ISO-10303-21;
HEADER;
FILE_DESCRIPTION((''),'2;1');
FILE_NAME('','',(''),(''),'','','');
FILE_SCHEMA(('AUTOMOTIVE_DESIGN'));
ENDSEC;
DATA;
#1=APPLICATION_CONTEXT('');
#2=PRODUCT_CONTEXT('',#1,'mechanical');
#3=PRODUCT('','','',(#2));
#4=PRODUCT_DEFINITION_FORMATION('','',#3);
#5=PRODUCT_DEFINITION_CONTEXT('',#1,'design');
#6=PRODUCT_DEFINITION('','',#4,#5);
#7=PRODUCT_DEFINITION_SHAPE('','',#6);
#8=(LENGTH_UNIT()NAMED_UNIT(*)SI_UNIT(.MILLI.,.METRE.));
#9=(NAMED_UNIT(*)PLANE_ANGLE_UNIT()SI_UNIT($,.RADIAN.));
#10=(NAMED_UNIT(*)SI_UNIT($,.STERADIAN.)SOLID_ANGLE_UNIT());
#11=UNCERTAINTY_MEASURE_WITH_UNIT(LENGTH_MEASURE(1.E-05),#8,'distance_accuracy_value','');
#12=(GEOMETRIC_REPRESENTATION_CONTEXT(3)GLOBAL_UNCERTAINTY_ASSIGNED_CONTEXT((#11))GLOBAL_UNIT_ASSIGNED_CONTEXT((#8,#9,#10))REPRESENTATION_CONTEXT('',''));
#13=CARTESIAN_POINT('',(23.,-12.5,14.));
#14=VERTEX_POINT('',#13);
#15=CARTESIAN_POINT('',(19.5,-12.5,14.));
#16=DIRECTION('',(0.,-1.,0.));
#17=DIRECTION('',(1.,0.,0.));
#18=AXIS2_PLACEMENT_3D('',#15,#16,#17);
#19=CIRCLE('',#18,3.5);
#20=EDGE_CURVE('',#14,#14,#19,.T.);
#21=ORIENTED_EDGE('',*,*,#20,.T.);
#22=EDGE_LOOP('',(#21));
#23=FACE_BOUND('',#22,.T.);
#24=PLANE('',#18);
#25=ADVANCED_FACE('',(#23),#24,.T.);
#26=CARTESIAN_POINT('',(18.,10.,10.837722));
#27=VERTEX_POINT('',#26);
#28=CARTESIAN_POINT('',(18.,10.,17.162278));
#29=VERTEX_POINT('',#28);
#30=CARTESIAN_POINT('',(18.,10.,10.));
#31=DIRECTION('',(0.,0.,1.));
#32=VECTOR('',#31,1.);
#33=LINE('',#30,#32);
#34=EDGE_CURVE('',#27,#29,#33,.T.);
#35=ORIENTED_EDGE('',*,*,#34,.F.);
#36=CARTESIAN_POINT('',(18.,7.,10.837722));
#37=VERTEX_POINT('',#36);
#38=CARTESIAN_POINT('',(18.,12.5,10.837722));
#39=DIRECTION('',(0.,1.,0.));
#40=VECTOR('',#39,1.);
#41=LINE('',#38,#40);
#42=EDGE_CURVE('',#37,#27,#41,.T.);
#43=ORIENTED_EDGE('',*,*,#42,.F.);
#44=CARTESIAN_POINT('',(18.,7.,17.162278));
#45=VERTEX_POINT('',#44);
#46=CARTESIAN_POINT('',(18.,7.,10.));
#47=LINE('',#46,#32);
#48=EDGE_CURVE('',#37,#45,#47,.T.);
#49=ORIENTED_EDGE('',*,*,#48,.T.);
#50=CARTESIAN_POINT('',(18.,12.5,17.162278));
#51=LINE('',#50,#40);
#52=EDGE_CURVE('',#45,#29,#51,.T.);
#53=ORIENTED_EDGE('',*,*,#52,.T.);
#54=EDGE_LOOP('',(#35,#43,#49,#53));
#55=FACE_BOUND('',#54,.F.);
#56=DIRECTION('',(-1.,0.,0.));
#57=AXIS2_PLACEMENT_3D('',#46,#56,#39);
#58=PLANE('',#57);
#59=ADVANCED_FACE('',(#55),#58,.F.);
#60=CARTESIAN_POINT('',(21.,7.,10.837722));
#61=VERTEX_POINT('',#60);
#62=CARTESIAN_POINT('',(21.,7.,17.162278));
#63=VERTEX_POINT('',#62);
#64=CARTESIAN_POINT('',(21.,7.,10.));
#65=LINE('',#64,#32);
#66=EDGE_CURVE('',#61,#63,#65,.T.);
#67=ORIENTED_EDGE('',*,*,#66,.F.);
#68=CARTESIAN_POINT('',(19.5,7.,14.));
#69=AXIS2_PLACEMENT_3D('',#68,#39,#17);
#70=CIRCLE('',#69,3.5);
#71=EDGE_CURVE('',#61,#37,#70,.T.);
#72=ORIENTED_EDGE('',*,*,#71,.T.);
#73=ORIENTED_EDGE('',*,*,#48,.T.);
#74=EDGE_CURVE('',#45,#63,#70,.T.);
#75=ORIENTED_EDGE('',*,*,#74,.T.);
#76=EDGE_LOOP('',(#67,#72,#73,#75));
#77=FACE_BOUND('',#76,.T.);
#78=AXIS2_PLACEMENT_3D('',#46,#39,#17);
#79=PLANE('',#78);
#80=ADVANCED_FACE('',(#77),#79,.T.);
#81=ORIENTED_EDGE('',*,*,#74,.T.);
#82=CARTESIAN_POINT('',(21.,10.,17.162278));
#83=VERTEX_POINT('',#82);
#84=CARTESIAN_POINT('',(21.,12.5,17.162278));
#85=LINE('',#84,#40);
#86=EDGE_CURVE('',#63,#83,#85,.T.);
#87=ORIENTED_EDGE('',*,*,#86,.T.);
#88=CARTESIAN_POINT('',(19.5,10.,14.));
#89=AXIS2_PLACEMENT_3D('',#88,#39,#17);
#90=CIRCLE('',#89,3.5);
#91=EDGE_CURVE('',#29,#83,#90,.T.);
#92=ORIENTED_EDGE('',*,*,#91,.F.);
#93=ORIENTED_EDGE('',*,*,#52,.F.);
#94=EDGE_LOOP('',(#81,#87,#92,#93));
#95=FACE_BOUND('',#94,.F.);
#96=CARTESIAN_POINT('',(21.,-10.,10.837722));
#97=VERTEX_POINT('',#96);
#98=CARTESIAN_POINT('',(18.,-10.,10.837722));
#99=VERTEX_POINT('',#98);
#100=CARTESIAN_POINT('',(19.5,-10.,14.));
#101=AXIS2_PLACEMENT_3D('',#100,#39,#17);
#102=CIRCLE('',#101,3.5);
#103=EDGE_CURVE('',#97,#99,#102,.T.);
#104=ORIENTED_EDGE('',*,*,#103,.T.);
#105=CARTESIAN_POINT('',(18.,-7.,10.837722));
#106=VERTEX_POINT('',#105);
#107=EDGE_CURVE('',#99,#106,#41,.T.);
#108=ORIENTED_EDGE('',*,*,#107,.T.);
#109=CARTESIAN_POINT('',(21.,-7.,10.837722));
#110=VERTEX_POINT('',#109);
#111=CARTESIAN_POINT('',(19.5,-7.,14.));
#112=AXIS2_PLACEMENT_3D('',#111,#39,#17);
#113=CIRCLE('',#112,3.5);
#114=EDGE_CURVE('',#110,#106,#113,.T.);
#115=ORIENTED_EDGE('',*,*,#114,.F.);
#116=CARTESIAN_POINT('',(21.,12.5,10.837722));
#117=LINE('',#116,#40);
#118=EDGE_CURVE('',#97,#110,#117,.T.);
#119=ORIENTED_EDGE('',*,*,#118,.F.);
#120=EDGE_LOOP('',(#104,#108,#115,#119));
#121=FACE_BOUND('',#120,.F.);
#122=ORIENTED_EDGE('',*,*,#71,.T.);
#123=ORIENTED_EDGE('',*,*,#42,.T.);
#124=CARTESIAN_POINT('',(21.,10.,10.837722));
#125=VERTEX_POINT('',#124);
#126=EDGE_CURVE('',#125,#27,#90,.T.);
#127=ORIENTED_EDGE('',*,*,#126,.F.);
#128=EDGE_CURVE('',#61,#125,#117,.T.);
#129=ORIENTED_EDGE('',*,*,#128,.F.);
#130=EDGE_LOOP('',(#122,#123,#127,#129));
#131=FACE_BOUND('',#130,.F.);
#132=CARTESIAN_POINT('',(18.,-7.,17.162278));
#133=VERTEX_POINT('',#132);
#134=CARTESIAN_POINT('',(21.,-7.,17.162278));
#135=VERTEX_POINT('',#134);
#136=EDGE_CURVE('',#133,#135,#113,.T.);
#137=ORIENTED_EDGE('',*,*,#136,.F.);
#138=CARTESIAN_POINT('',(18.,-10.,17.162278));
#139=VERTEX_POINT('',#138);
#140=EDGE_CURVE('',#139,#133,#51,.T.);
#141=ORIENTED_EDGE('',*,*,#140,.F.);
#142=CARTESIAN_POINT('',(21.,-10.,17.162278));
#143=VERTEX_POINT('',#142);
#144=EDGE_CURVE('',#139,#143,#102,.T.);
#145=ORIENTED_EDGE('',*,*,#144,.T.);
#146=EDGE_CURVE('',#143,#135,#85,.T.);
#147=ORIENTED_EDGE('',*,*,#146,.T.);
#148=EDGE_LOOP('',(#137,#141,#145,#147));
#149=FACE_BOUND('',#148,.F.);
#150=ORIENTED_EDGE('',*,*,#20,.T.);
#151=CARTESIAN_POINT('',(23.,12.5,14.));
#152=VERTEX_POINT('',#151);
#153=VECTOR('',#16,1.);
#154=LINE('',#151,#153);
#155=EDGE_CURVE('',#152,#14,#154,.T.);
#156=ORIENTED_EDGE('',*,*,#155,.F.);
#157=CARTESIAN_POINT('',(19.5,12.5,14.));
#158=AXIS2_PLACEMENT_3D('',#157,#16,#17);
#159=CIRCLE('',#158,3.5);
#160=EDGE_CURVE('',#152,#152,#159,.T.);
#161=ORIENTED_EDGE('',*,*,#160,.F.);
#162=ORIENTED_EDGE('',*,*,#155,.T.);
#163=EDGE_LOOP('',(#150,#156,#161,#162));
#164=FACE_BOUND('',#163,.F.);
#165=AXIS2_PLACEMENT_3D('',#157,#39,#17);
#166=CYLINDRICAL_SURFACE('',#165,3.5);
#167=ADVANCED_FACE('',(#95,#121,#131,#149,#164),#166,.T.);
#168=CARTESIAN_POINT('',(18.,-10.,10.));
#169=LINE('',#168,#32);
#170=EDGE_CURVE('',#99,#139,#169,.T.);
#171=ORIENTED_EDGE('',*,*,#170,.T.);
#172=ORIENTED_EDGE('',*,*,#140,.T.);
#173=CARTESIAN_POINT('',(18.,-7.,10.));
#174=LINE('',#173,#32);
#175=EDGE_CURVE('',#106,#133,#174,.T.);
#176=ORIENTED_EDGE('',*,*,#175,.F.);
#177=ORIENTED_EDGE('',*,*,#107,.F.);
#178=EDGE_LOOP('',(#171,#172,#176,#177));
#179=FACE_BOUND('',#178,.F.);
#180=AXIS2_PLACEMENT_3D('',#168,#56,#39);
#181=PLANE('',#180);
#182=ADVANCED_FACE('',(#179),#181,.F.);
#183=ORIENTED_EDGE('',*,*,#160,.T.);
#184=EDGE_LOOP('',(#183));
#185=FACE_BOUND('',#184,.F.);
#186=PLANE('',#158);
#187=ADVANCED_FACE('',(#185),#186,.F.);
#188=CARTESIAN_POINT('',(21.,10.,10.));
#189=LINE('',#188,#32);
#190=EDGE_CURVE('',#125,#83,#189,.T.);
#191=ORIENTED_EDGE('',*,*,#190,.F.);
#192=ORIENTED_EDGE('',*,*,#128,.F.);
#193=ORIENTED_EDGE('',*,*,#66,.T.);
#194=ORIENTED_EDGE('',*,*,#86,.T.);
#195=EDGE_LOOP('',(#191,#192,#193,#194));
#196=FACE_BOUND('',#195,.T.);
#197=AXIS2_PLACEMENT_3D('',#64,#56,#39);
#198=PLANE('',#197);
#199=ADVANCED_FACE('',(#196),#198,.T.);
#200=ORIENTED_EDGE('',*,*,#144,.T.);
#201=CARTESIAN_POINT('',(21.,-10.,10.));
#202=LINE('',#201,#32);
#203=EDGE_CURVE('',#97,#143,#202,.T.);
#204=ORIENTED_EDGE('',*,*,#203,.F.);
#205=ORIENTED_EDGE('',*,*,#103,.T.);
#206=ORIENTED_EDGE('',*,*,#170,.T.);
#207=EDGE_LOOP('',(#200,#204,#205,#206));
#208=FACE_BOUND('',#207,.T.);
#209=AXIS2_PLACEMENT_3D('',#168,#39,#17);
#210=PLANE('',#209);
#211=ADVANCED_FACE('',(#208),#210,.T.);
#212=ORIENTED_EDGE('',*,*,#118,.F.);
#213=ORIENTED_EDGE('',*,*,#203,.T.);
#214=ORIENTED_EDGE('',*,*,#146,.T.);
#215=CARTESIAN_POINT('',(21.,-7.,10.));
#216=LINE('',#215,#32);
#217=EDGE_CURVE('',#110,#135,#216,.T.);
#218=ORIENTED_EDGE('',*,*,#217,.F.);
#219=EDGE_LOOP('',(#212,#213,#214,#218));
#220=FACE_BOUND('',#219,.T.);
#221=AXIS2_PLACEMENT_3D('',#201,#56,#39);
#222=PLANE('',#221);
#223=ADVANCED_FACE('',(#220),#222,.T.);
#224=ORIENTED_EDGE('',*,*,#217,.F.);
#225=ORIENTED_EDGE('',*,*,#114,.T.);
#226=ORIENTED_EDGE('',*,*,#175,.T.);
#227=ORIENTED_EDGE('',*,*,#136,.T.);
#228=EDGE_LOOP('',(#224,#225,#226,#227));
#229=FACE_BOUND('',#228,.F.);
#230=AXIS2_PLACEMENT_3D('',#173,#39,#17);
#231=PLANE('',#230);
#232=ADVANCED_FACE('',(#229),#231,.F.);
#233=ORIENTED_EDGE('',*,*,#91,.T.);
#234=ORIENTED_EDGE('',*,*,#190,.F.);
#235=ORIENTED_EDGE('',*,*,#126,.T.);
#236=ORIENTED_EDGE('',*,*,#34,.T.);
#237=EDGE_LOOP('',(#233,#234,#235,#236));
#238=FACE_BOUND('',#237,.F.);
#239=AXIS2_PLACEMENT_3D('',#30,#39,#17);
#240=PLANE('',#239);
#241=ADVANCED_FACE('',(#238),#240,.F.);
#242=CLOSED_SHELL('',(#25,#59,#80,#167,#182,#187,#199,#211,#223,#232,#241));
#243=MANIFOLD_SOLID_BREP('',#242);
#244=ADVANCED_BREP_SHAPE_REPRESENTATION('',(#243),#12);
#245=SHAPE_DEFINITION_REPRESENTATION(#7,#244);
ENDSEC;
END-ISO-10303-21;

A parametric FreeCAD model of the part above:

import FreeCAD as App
import Part
import Sketcher

doc = App.newDocument("Part")
body = doc.addObject("PartDesign::Body", "Body")

# Sketch on XY plane
sketch1 = body.newObject("Sketcher::SketchObject", "Sketch")
sketch1.AttachmentSupport = (doc.getObject("XY_Plane"), [""])
sketch1.MapMode = "FlatFace"
sketch1.AttachmentOffset = App.Placement(App.Vector(0, 0, 10), App.Rotation())
sketch1.addGeometry(Part.LineSegment(App.Vector(18, -7, 0), App.Vector(18, -10, 0)), False)
sketch1.addGeometry(Part.LineSegment(App.Vector(18, -10, 0), App.Vector(21, -10, 0)), False)
sketch1.addGeometry(Part.LineSegment(App.Vector(21, -10, 0), App.Vector(21, -7, 0)), False)
sketch1.addGeometry(Part.LineSegment(App.Vector(21, -7, 0), App.Vector(18, -7, 0)), False)
sketch1.addConstraint(Sketcher.Constraint("Coincident", 0, 2, 1, 1))
sketch1.addConstraint(Sketcher.Constraint("Coincident", 1, 2, 2, 1))
sketch1.addConstraint(Sketcher.Constraint("Coincident", 2, 2, 3, 1))
sketch1.addConstraint(Sketcher.Constraint("Coincident", 3, 2, 0, 1))
sketch1.addConstraint(Sketcher.Constraint("Vertical", 0))
sketch1.addConstraint(Sketcher.Constraint("Horizontal", 1))
sketch1.addConstraint(Sketcher.Constraint("Vertical", 2))
sketch1.addConstraint(Sketcher.Constraint("Horizontal", 3))
sketch1.addConstraint(Sketcher.Constraint("Equal", 3, 0))
sketch1.addConstraint(Sketcher.Constraint("DistanceX", 1, 1, 1, 2, 3.0))
sketch1.addConstraint(Sketcher.Constraint("DistanceX", -1, 1, 0, 2, 18.0))
sketch1.addConstraint(Sketcher.Constraint("DistanceY", 0, 2, -1, 1, 10.0))
pad1 = body.newObject("PartDesign::Pad", "Pad")
pad1.Profile = sketch1
pad1.Length = 8
body2 = doc.addObject("PartDesign::Body", "Body001")
body2.AllowCompound = True

# Sketch on XY plane
sketch2 = body2.newObject("Sketcher::SketchObject", "Sketch001")
sketch2.AttachmentSupport = (doc.getObject("XY_Plane001"), [""])
sketch2.MapMode = "FlatFace"
sketch2.AttachmentOffset = App.Placement(App.Vector(0, 0, 10), App.Rotation())
sketch2.addGeometry(Part.LineSegment(App.Vector(18, 10, 0), App.Vector(18, 7, 0)), False)
sketch2.addGeometry(Part.LineSegment(App.Vector(18, 7, 0), App.Vector(21, 7, 0)), False)
sketch2.addGeometry(Part.LineSegment(App.Vector(21, 7, 0), App.Vector(21, 10, 0)), False)
sketch2.addGeometry(Part.LineSegment(App.Vector(21, 10, 0), App.Vector(18, 10, 0)), False)
sketch2.addConstraint(Sketcher.Constraint("Coincident", 0, 2, 1, 1))
sketch2.addConstraint(Sketcher.Constraint("Coincident", 1, 2, 2, 1))
sketch2.addConstraint(Sketcher.Constraint("Coincident", 2, 2, 3, 1))
sketch2.addConstraint(Sketcher.Constraint("Coincident", 3, 2, 0, 1))
sketch2.addConstraint(Sketcher.Constraint("Vertical", 0))
sketch2.addConstraint(Sketcher.Constraint("Horizontal", 1))
sketch2.addConstraint(Sketcher.Constraint("Vertical", 2))
sketch2.addConstraint(Sketcher.Constraint("Horizontal", 3))
sketch2.addConstraint(Sketcher.Constraint("Equal", 3, 0))
sketch2.addConstraint(Sketcher.Constraint("DistanceX", 1, 1, 1, 2, 3.0))
sketch2.addConstraint(Sketcher.Constraint("DistanceX", -1, 1, 0, 2, 18.0))
sketch2.addConstraint(Sketcher.Constraint("DistanceY", -1, 1, 0, 2, 7.0))
pad2 = body2.newObject("PartDesign::Pad", "Pad001")
pad2.Profile = sketch2
pad2.Length = 8
doc.recompute()

boolean = body2.newObject("PartDesign::Boolean", "Boolean")
boolean.Type = "Fuse"
boolean.addObjects([body])
body3 = doc.addObject("PartDesign::Body", "Body002")

# Sketch on XZ plane
sketch3 = body3.newObject("Sketcher::SketchObject", "Sketch002")
sketch3.AttachmentSupport = (doc.getObject("XZ_Plane002"), [""])
sketch3.MapMode = "FlatFace"
sketch3.AttachmentOffset = App.Placement(App.Vector(0, 0, -12.5), App.Rotation())
sketch3.addGeometry(Part.Circle(App.Vector(19.5, 14, 0), App.Vector(0, 0, 1), 3.5), False)
sketch3.addConstraint(Sketcher.Constraint("Diameter", 0, 7.0))
sketch3.addConstraint(Sketcher.Constraint("DistanceY", -1, 1, 0, 3, 14.0))
sketch3.addConstraint(Sketcher.Constraint("DistanceX", -1, 1, 0, 3, 19.5))
pad3 = body3.newObject("PartDesign::Pad", "Pad002")
pad3.Profile = sketch3
pad3.Length = 25
doc.recompute()

boolean2 = body3.newObject("PartDesign::Boolean", "Boolean001")
boolean2.Type = "Cut"
boolean2.addObjects([body2])

doc.recompute()
